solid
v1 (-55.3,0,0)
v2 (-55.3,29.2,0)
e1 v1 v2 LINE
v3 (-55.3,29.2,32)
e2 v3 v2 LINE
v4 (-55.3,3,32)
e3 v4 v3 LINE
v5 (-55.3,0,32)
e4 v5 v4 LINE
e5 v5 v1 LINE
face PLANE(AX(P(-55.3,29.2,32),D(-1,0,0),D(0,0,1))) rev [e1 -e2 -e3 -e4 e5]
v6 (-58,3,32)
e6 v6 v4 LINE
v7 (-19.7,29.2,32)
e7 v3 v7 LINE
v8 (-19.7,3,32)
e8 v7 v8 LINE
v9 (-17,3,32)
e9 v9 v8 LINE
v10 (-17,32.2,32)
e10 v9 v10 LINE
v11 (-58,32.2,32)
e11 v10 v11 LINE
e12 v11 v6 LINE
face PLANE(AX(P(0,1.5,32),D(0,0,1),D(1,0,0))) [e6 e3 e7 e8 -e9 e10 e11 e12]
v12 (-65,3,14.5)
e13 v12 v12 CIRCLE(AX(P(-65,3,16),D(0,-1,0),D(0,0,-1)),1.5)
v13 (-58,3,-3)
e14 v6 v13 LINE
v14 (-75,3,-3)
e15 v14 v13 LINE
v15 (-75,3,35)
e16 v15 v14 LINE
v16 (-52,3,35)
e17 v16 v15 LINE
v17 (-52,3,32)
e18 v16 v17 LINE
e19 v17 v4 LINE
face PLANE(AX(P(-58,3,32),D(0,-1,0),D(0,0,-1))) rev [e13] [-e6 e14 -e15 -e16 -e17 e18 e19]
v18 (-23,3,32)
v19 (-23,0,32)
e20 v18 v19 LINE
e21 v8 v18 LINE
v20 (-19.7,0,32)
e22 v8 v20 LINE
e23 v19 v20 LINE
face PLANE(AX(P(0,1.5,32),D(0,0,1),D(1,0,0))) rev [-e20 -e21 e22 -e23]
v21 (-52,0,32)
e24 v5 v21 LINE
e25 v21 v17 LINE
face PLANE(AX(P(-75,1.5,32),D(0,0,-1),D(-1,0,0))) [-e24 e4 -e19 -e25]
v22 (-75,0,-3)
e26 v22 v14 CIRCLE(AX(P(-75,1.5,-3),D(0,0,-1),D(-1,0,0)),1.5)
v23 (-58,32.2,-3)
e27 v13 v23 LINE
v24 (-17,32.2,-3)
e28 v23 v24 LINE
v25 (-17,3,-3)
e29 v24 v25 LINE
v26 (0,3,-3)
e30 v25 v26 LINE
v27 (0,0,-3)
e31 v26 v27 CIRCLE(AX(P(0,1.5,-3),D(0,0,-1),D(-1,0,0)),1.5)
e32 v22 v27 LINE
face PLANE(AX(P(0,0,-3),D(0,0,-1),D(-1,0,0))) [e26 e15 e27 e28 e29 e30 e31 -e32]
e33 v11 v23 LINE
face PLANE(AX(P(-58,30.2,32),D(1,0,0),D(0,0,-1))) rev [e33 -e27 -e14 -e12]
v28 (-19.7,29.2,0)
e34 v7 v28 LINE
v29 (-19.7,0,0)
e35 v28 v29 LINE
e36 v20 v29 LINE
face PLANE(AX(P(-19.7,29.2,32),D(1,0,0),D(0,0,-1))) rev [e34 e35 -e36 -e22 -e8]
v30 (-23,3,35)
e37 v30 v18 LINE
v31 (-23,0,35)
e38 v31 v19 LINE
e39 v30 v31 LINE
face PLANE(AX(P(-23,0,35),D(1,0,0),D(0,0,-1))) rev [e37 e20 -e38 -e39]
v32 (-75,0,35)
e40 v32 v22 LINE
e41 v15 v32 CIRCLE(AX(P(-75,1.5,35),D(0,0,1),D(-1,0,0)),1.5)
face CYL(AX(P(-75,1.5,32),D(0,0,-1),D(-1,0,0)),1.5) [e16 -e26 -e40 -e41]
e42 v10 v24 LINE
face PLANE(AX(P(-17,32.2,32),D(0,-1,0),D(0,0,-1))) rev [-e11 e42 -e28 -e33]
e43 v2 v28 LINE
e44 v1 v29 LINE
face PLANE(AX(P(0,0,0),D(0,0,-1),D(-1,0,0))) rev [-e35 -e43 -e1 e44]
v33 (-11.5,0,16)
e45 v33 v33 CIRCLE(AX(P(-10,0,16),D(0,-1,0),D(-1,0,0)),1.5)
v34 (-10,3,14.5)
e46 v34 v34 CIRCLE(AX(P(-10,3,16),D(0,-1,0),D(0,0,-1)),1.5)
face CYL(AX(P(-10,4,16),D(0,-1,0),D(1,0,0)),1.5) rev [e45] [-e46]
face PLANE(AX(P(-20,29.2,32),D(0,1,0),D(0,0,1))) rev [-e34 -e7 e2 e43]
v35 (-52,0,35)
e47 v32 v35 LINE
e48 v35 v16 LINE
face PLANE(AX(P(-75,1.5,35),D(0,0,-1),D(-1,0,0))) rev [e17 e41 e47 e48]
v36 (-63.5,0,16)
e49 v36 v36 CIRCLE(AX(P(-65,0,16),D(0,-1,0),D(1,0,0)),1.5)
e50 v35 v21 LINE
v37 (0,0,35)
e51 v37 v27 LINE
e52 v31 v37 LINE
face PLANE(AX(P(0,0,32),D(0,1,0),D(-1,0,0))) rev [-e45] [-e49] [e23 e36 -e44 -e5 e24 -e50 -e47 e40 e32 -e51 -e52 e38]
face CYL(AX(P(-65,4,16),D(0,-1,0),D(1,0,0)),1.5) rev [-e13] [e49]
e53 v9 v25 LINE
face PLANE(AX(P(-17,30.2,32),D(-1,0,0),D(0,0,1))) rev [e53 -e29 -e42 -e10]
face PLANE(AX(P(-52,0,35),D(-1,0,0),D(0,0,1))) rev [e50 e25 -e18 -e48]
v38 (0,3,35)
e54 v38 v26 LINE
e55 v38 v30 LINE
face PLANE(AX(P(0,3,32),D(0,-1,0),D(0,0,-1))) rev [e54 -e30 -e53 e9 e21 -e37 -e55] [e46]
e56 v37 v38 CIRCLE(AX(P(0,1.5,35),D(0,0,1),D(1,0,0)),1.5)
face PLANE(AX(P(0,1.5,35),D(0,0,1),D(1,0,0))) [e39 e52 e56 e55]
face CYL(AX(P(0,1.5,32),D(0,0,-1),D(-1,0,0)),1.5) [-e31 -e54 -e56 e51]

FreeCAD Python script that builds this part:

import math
import FreeCAD as App
import Part
import Sketcher

V = App.Vector

doc = App.newDocument("Part")
params = doc.addObject("Spreadsheet::Sheet", "Params")
for row, (alias, value) in enumerate([
    ("sketch1_radius", "1.5 mm"),
    ("sketch1_width", "17 mm"),
    ("sketch1_width2", "41 mm"),
    ("sketch1_width3", "19.7 mm"),
    ("sketch1_height", "29.2 mm"),
    ("pad1_length", "32 mm"),
    ("sketch2_radius", "1.5 mm"),
    ("sketch2_width", "17 mm"),
    ("sketch2_width2", "41 mm"),
    ("sketch2_height", "29.2 mm"),
    ("pad2_length", "3 mm"),
    ("sketch3_radius", "1.5 mm"),
    ("sketch3_width", "23 mm"),
    ("pad3_length", "3 mm"),
    ("sketch4_diameter", "3 mm"),
    ("pocket1_length", "4 mm"),
], start=1):
    params.set(f"A{row}", alias)
    params.set(f"B{row}", "=" + value)
    params.setAlias(f"B{row}", alias)

body = doc.addObject("PartDesign::Body", "Body")

sketch1 = doc.addObject("Sketcher::SketchObject", "Sketch")
body.addObject(sketch1)
sketch1.AttachmentSupport = (doc.XY_Plane, [""])
sketch1.MapMode = "FlatFace"
sketch1.addGeometry([
    Part.LineSegment(V(-19.7, 0, 0), V(0, 0, 0)),
    Part.ArcOfCircle(Part.Circle(V(0, 1.5, 0), V(0, 0, 1), 1.5), math.radians(-90), math.radians(90)),
    Part.LineSegment(V(0, 3, 0), V(-17, 3, 0)),
    Part.LineSegment(V(-17, 3, 0), V(-17, 32.2, 0)),
    Part.LineSegment(V(-17, 32.2, 0), V(-58, 32.2, 0)),
    Part.LineSegment(V(-58, 32.2, 0), V(-58, 3, 0)),
    Part.LineSegment(V(-58, 3, 0), V(-75, 3, 0)),
    Part.ArcOfCircle(Part.Circle(V(-75, 1.5, 0), V(0, 0, 1), 1.5), math.radians(90), math.radians(270)),
    Part.LineSegment(V(-75, 0, 0), V(-55.3, 0, 0)),
    Part.LineSegment(V(-55.3, 0, 0), V(-55.3, 29.2, 0)),
    Part.LineSegment(V(-55.3, 29.2, 0), V(-19.7, 29.2, 0)),
    Part.LineSegment(V(-19.7, 29.2, 0), V(-19.7, 0, 0)),
], False)
sketch1.addConstraint([
    Sketcher.Constraint("Tangent", 0, 2, 1, 1),
    Sketcher.Constraint("Tangent", 1, 2, 2, 1),
    Sketcher.Constraint("Coincident", 2, 2, 3, 1),
    Sketcher.Constraint("Coincident", 3, 2, 4, 1),
    Sketcher.Constraint("Coincident", 4, 2, 5, 1),
    Sketcher.Constraint("Coincident", 5, 2, 6, 1),
    Sketcher.Constraint("Tangent", 6, 2, 7, 1),
    Sketcher.Constraint("Tangent", 7, 2, 8, 1),
    Sketcher.Constraint("Coincident", 8, 2, 9, 1),
    Sketcher.Constraint("Coincident", 9, 2, 10, 1),
    Sketcher.Constraint("Coincident", 10, 2, 11, 1),
    Sketcher.Constraint("Coincident", 11, 2, 0, 1),
    Sketcher.Constraint("Horizontal", 0),
    Sketcher.Constraint("Horizontal", 2),
    Sketcher.Constraint("Vertical", 3),
    Sketcher.Constraint("Horizontal", 4),
    Sketcher.Constraint("Vertical", 5),
    Sketcher.Constraint("Horizontal", 6),
    Sketcher.Constraint("Horizontal", 8),
    Sketcher.Constraint("Vertical", 9),
    Sketcher.Constraint("Horizontal", 10),
    Sketcher.Constraint("Vertical", 11),
    Sketcher.Constraint("Coincident", 0, 2, -1, 1),
    Sketcher.Constraint("Equal", 1, 7),
    Sketcher.Constraint("PointOnObject", 7, 2, -1),
    Sketcher.Constraint("Equal", 2, 6),
    Sketcher.Constraint("Equal", 0, 8),
    Sketcher.Constraint("Equal", 5, 9),
    Sketcher.Constraint("Radius", 1, 1.5),
    Sketcher.Constraint("DistanceX", 2, 2, 2, 1, 17.0),
    Sketcher.Constraint("DistanceX", 4, 2, 4, 1, 41.0),
    Sketcher.Constraint("DistanceX", 0, 1, 0, 2, 19.7),
    Sketcher.Constraint("DistanceY", 3, 1, 3, 2, 29.2),
])
sketch1.setExpression("Constraints[28]", "Params.sketch1_radius")
sketch1.setExpression("Constraints[29]", "Params.sketch1_width")
sketch1.setExpression("Constraints[30]", "Params.sketch1_width2")
sketch1.setExpression("Constraints[31]", "Params.sketch1_width3")
sketch1.setExpression("Constraints[32]", "Params.sketch1_height")
pad1 = doc.addObject("PartDesign::Pad", "Pad")
body.addObject(pad1)
pad1.Profile = sketch1
pad1.setExpression("Length", "Params.pad1_length")

sketch2 = doc.addObject("Sketcher::SketchObject", "Sketch001")
body.addObject(sketch2)
sketch2.AttachmentSupport = (doc.XY_Plane, [""])
sketch2.MapMode = "FlatFace"
sketch2.addGeometry([
    Part.ArcOfCircle(Part.Circle(V(-75, 1.5, 0), V(0, 0, 1), 1.5), math.radians(90), math.radians(270)),
    Part.LineSegment(V(-75, 3, 0), V(-58, 3, 0)),
    Part.LineSegment(V(-58, 3, 0), V(-58, 32.2, 0)),
    Part.LineSegment(V(-58, 32.2, 0), V(-17, 32.2, 0)),
    Part.LineSegment(V(-17, 32.2, 0), V(-17, 3, 0)),
    Part.LineSegment(V(-17, 3, 0), V(0, 3, 0)),
    Part.ArcOfCircle(Part.Circle(V(0, 1.5, 0), V(0, 0, 1), 1.5), math.radians(-90), math.radians(90)),
    Part.LineSegment(V(0, 0, 0), V(-75, 0, 0)),
], False)
sketch2.addConstraint([
    Sketcher.Constraint("Tangent", 0, 1, 1, 1),
    Sketcher.Constraint("Coincident", 1, 2, 2, 1),
    Sketcher.Constraint("Coincident", 2, 2, 3, 1),
    Sketcher.Constraint("Coincident", 3, 2, 4, 1),
    Sketcher.Constraint("Coincident", 4, 2, 5, 1),
    Sketcher.Constraint("Tangent", 5, 2, 6, 2),
    Sketcher.Constraint("Tangent", 6, 1, 7, 1),
    Sketcher.Constraint("Tangent", 7, 2, 0, 2),
    Sketcher.Constraint("Horizontal", 1),
    Sketcher.Constraint("Vertical", 2),
    Sketcher.Constraint("Horizontal", 3),
    Sketcher.Constraint("Vertical", 4),
    Sketcher.Constraint("Horizontal", 5),
    Sketcher.Constraint("Horizontal", 7),
    Sketcher.Constraint("Coincident", 6, 1, -1, 1),
    Sketcher.Constraint("Equal", 0, 6),
    Sketcher.Constraint("Equal", 1, 5),
    Sketcher.Constraint("Radius", 0, 1.5),
    Sketcher.Constraint("DistanceX", 1, 1, 1, 2, 17.0),
    Sketcher.Constraint("DistanceX", 3, 1, 3, 2, 41.0),
    Sketcher.Constraint("DistanceY", 2, 1, 2, 2, 29.2),
])
sketch2.setExpression("Constraints[17]", "Params.sketch2_radius")
sketch2.setExpression("Constraints[18]", "Params.sketch2_width")
sketch2.setExpression("Constraints[19]", "Params.sketch2_width2")
sketch2.setExpression("Constraints[20]", "Params.sketch2_height")
pad2 = doc.addObject("PartDesign::Pad", "Pad001")
body.addObject(pad2)
pad2.Profile = sketch2
pad2.setExpression("Length", "Params.pad2_length")
pad2.Reversed = True

sketch3 = doc.addObject("Sketcher::SketchObject", "Sketch002")
body.addObject(sketch3)
sketch3.AttachmentSupport = (doc.XY_Plane, [""])
sketch3.MapMode = "FlatFace"
sketch3.AttachmentOffset = App.Placement(V(0, 0, 32), App.Rotation())
sketch3.addGeometry([
    Part.LineSegment(V(-23, 3, 0), V(-23, 0, 0)),
    Part.LineSegment(V(-23, 0, 0), V(0, 0, 0)),
    Part.ArcOfCircle(Part.Circle(V(0, 1.5, 0), V(0, 0, 1), 1.5), math.radians(-90), math.radians(90)),
    Part.LineSegment(V(0, 3, 0), V(-23, 3, 0)),
    Part.ArcOfCircle(Part.Circle(V(-75, 1.5, 0), V(0, 0, 1), 1.5), math.radians(90), math.radians(270)),
    Part.LineSegment(V(-75, 0, 0), V(-52, 0, 0)),
    Part.LineSegment(V(-52, 0, 0), V(-52, 3, 0)),
    Part.LineSegment(V(-52, 3, 0), V(-75, 3, 0)),
], False)
sketch3.addConstraint([
    Sketcher.Constraint("Coincident", 0, 2, 1, 1),
    Sketcher.Constraint("Tangent", 1, 2, 2, 1),
    Sketcher.Constraint("Tangent", 2, 2, 3, 1),
    Sketcher.Constraint("Coincident", 3, 2, 0, 1),
    Sketcher.Constraint("Tangent", 4, 2, 5, 1),
    Sketcher.Constraint("Coincident", 5, 2, 6, 1),
    Sketcher.Constraint("Coincident", 6, 2, 7, 1),
    Sketcher.Constraint("Tangent", 7, 2, 4, 1),
    Sketcher.Constraint("Vertical", 0),
    Sketcher.Constraint("Horizontal", 1),
    Sketcher.Constraint("Horizontal", 3),
    Sketcher.Constraint("Horizontal", 5),
    Sketcher.Constraint("Vertical", 6),
    Sketcher.Constraint("Horizontal", 7),
    Sketcher.Constraint("Coincident", 1, 2, -1, 1),
    Sketcher.Constraint("Equal", 2, 4),
    Sketcher.Constraint("PointOnObject", 4, 2, -1),
    Sketcher.Constraint("Equal", 3, 5),
    Sketcher.Constraint("Radius", 2, 1.5),
    Sketcher.Constraint("DistanceX", 1, 1, 1, 2, 23.0),
    Sketcher.Constraint("DistanceX", 4, 3, -1, 1, 75.0),
])
sketch3.setExpression("Constraints[18]", "Params.sketch3_radius")
sketch3.setExpression("Constraints[19]", "Params.sketch3_width")
pad3 = doc.addObject("PartDesign::Pad", "Pad002")
body.addObject(pad3)
pad3.Profile = sketch3
pad3.setExpression("Length", "Params.pad3_length")

sketch4 = doc.addObject("Sketcher::SketchObject", "Sketch003")
body.addObject(sketch4)
sketch4.AttachmentSupport = (doc.XZ_Plane, [""])
sketch4.MapMode = "FlatFace"
sketch4.addGeometry([
    Part.Circle(V(-65, 16, 0), V(0, 0, 1), 1.5),
    Part.Circle(V(-10, 16, 0), V(0, 0, 1), 1.5),
], False)
sketch4.addConstraint([
    Sketcher.Constraint("Equal", 0, 1),
    Sketcher.Constraint("Horizontal", 0, 3, 1, 3),
    Sketcher.Constraint("Diameter", 0, 3.0),
    Sketcher.Constraint("DistanceX", 0, 3, -1, 1, 65.0),
    Sketcher.Constraint("DistanceY", -1, 1, 0, 3, 16.0),
    Sketcher.Constraint("DistanceX", 1, 3, -1, 1, 10.0),
])
sketch4.setExpression("Constraints[2]", "Params.sketch4_diameter")
pocket1 = doc.addObject("PartDesign::Pocket", "Pocket")
body.addObject(pocket1)
pocket1.Profile = sketch4
pocket1.setExpression("Length", "Params.pocket1_length")

doc.recompute()
